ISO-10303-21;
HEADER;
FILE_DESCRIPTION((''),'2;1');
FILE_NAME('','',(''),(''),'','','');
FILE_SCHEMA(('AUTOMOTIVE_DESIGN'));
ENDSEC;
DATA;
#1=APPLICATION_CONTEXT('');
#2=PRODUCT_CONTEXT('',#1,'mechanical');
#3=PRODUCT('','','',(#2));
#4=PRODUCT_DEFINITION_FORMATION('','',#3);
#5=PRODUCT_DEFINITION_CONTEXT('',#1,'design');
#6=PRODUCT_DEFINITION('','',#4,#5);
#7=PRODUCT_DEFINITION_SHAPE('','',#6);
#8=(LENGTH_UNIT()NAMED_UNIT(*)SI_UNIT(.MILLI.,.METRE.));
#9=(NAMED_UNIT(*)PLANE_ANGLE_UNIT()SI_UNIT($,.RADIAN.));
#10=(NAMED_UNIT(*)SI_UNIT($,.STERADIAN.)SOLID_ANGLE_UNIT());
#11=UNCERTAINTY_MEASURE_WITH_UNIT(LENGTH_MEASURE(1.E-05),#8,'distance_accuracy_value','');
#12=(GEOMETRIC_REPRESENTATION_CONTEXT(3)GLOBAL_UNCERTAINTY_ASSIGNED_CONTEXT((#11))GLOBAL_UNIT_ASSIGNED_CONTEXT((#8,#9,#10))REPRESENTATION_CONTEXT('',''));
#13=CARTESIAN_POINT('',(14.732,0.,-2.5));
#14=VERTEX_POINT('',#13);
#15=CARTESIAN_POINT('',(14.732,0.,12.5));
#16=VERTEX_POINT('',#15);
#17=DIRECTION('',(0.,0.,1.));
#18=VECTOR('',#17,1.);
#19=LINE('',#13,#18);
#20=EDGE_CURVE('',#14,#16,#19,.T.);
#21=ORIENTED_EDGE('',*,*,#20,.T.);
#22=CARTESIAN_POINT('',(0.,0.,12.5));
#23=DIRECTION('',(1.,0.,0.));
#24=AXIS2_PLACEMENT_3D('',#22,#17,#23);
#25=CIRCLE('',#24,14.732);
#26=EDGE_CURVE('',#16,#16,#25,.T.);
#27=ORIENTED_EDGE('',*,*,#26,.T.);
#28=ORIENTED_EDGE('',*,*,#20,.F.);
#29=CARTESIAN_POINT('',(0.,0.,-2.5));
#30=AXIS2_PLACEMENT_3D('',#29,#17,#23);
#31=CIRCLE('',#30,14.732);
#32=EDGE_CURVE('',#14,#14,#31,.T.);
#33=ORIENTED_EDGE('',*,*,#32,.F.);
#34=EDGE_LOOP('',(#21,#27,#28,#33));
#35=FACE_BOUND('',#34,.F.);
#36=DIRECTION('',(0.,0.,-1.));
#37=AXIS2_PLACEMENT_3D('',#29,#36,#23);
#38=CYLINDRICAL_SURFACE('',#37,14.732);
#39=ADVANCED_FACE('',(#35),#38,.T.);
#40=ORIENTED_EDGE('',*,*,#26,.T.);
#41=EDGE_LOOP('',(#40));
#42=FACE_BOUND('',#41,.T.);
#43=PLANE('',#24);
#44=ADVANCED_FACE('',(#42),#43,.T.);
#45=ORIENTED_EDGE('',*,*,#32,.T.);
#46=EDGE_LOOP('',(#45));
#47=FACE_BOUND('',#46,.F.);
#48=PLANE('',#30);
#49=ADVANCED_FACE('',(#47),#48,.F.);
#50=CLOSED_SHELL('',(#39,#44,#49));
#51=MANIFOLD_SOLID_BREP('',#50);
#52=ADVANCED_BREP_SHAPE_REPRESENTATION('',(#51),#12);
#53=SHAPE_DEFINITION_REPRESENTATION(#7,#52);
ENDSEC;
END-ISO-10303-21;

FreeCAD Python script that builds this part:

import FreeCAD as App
import Part
import Sketcher
from FreeCAD import Vector

doc = App.newDocument("Part")
body = doc.addObject("PartDesign::Body", "Body")

# Sketch on XY plane
sketch1 = body.newObject("Sketcher::SketchObject", "Sketch")
sketch1.AttachmentSupport = (doc.getObject("XY_Plane"), [""])
sketch1.MapMode = "FlatFace"
sketch1.AttachmentOffset = App.Placement(Vector(0, 0, -2.5), App.Rotation())
sketch1.addGeometry(Part.Circle(Vector(0, 0, 0), Vector(0, 0, 1), 15), False)
sketch1.addConstraint([
    Sketcher.Constraint("Coincident", 0, 3, -1, 1),
    Sketcher.Constraint("Diameter", 0, 29.464),
])
pad1 = body.newObject("PartDesign::Pad", "Pad")
pad1.Profile = sketch1
pad1.Length = 15

doc.recompute()
